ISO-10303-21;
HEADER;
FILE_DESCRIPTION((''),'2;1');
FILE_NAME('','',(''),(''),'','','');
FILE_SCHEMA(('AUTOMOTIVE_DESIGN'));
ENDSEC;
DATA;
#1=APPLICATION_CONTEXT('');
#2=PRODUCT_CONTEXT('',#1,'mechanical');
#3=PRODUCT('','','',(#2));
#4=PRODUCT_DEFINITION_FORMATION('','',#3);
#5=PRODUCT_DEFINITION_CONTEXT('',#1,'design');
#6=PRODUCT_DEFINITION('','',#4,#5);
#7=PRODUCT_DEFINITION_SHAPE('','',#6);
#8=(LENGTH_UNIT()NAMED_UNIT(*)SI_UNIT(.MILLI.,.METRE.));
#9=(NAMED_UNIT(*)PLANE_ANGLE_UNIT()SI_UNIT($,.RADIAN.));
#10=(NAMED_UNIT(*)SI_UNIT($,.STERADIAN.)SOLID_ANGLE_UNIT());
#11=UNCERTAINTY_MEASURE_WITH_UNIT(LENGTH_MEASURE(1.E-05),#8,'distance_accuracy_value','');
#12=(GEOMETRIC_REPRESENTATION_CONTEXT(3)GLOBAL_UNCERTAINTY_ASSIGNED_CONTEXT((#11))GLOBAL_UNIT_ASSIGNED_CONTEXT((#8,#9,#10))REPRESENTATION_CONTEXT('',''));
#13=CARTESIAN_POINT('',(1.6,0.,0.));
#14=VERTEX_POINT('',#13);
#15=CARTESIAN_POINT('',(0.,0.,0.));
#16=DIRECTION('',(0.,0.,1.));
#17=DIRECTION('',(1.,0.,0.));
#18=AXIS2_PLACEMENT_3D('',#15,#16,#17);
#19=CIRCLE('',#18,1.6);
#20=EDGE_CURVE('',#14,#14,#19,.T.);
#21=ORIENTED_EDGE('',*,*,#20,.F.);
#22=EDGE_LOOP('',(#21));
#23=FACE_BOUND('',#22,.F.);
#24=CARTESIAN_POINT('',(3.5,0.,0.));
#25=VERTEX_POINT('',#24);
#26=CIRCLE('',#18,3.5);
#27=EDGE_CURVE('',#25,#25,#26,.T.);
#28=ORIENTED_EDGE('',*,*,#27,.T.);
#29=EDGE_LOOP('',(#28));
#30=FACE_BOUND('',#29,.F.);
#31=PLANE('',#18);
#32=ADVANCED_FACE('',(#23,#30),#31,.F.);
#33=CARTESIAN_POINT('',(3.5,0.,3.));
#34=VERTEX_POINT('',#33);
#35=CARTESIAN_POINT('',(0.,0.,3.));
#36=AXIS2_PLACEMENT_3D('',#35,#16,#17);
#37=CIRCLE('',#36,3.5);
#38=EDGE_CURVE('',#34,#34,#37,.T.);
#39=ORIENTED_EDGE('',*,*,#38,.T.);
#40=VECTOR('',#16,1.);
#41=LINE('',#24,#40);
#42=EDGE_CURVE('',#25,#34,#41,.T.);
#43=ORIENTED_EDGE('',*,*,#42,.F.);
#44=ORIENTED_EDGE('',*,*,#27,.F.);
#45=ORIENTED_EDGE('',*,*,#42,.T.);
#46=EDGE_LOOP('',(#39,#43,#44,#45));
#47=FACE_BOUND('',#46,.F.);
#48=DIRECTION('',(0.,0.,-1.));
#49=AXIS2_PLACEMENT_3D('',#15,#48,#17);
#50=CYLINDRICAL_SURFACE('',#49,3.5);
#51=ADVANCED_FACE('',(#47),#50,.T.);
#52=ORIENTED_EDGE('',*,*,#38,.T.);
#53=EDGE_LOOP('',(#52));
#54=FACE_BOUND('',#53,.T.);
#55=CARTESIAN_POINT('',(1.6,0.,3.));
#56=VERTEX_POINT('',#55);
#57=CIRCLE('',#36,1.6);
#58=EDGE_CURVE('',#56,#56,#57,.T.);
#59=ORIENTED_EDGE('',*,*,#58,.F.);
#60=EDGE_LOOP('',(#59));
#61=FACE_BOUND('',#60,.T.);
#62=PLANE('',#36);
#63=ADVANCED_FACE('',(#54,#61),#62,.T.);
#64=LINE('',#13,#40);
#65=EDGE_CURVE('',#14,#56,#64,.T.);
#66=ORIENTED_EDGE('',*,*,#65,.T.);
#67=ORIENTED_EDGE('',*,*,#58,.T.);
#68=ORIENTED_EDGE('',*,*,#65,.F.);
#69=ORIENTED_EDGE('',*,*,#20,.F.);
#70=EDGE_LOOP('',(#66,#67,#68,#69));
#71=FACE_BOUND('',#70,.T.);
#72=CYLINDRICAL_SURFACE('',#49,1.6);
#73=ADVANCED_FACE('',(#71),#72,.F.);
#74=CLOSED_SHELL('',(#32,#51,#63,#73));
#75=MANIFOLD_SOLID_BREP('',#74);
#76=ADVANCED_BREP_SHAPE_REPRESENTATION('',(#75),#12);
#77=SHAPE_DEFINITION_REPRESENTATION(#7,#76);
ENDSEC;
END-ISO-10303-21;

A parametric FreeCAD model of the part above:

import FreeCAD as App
import Part
import Sketcher
from FreeCAD import Vector
Q = App.Units.Quantity

doc = App.newDocument("Part")
body = doc.addObject("PartDesign::Body", "Body")

# Sketch on XY plane
sketch1 = body.newObject("Sketcher::SketchObject", "Sketch")
sketch1.AttachmentSupport = (doc.getObject("XY_Plane"), [""])
sketch1.MapMode = "FlatFace"
sketch1.addGeometry([
    Part.Circle(Vector(0, 0, 0), Vector(0, 0, 1), 3.5),
    Part.Circle(Vector(0, 0, 0), Vector(0, 0, 1), 1.6),
], False)
sketch1.addConstraint([
    Sketcher.Constraint("Coincident", 0, 3, -1, 1),
    Sketcher.Constraint("Coincident", 1, 3, -1, 1),
    Sketcher.Constraint("Diameter", 0, Q("7 mm")),
    Sketcher.Constraint("Diameter", 1, Q("3.2 mm")),
])
pad1 = body.newObject("PartDesign::Pad", "Pad")
pad1.Profile = sketch1
pad1.Length = 3

doc.recompute()
